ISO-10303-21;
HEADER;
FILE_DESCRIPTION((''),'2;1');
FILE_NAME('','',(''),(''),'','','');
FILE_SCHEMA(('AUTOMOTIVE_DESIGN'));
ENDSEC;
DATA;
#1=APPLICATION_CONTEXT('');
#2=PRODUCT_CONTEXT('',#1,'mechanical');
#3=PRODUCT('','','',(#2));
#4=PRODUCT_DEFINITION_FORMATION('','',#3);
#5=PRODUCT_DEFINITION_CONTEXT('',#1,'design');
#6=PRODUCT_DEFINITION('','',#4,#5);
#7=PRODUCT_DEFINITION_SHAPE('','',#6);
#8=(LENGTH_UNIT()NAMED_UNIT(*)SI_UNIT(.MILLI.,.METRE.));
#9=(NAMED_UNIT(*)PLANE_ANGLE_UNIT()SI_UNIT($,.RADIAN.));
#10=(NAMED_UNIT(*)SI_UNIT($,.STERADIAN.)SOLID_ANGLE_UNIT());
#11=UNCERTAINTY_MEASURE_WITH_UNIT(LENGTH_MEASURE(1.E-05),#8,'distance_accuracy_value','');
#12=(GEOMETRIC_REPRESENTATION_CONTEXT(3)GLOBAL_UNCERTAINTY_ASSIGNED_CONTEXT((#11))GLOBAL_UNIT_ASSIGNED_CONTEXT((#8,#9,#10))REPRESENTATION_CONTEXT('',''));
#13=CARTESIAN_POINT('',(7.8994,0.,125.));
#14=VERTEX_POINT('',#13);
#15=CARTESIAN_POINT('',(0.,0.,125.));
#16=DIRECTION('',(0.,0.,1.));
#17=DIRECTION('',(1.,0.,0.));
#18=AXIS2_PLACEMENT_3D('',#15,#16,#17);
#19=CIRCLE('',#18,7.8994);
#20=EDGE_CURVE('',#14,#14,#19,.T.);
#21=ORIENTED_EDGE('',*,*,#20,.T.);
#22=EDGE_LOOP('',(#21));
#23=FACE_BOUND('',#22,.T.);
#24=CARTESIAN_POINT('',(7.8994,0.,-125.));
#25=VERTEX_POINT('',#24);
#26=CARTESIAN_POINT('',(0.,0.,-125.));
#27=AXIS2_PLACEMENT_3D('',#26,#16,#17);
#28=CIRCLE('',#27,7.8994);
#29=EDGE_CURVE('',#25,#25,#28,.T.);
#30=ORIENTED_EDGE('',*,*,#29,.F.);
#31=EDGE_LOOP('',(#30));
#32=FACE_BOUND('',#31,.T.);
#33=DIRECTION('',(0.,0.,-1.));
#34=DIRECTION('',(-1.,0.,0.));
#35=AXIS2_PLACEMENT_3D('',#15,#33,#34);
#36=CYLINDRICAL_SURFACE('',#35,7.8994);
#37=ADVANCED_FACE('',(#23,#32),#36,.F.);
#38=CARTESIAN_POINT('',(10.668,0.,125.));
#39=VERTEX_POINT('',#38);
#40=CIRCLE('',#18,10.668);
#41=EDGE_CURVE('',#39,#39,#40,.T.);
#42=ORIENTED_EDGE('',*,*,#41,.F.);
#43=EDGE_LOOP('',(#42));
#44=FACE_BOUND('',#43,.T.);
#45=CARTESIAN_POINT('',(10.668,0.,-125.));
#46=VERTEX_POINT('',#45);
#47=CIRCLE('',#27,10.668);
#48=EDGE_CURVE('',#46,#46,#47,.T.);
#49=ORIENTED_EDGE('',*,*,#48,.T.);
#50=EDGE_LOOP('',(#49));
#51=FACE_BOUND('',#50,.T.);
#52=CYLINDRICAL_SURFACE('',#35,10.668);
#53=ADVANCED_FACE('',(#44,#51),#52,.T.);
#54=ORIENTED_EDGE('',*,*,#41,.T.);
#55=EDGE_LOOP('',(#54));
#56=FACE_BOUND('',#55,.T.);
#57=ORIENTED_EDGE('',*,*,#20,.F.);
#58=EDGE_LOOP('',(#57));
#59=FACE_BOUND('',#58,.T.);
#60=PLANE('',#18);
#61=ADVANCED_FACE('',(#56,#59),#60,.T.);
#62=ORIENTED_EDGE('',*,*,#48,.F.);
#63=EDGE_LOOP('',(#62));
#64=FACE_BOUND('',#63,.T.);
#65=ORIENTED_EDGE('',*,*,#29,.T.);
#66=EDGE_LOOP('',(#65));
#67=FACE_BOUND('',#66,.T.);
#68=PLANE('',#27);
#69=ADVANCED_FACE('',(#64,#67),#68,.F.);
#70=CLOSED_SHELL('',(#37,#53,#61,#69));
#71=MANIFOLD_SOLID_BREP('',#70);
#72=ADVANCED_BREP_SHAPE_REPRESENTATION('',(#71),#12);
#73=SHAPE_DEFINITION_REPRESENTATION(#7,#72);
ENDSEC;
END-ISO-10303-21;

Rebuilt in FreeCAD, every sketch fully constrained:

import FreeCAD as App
import Part
import Sketcher

V = App.Vector
Q = App.Units.Quantity

doc = App.newDocument("Part")
body = doc.addObject("PartDesign::Body", "Body")

sketch1 = body.newObject("Sketcher::SketchObject", "Sketch")
sketch1.AttachmentSupport = (doc.getObject("XY_Plane"), [""])
sketch1.MapMode = "FlatFace"
sketch1.addGeometry(Part.Circle(V(0, 0, 0), V(0, 0, 1), 10.668), False)
sketch1.addGeometry(Part.Circle(V(0, 0, 0), V(0, 0, 1), 7.8994), False)
sketch1.addConstraint(Sketcher.Constraint("Coincident", 0, 3, -1, 1))
sketch1.addConstraint(Sketcher.Constraint("Coincident", 1, 3, -1, 1))
sketch1.addConstraint(Sketcher.Constraint("Diameter", 0, Q("0.84 in")))
sketch1.addConstraint(Sketcher.Constraint("Diameter", 1, Q("0.622 in")))
pad1 = body.newObject("PartDesign::Pad", "Pad")
pad1.Profile = sketch1
pad1.Length = 250
pad1.Midplane = True

doc.recompute()
